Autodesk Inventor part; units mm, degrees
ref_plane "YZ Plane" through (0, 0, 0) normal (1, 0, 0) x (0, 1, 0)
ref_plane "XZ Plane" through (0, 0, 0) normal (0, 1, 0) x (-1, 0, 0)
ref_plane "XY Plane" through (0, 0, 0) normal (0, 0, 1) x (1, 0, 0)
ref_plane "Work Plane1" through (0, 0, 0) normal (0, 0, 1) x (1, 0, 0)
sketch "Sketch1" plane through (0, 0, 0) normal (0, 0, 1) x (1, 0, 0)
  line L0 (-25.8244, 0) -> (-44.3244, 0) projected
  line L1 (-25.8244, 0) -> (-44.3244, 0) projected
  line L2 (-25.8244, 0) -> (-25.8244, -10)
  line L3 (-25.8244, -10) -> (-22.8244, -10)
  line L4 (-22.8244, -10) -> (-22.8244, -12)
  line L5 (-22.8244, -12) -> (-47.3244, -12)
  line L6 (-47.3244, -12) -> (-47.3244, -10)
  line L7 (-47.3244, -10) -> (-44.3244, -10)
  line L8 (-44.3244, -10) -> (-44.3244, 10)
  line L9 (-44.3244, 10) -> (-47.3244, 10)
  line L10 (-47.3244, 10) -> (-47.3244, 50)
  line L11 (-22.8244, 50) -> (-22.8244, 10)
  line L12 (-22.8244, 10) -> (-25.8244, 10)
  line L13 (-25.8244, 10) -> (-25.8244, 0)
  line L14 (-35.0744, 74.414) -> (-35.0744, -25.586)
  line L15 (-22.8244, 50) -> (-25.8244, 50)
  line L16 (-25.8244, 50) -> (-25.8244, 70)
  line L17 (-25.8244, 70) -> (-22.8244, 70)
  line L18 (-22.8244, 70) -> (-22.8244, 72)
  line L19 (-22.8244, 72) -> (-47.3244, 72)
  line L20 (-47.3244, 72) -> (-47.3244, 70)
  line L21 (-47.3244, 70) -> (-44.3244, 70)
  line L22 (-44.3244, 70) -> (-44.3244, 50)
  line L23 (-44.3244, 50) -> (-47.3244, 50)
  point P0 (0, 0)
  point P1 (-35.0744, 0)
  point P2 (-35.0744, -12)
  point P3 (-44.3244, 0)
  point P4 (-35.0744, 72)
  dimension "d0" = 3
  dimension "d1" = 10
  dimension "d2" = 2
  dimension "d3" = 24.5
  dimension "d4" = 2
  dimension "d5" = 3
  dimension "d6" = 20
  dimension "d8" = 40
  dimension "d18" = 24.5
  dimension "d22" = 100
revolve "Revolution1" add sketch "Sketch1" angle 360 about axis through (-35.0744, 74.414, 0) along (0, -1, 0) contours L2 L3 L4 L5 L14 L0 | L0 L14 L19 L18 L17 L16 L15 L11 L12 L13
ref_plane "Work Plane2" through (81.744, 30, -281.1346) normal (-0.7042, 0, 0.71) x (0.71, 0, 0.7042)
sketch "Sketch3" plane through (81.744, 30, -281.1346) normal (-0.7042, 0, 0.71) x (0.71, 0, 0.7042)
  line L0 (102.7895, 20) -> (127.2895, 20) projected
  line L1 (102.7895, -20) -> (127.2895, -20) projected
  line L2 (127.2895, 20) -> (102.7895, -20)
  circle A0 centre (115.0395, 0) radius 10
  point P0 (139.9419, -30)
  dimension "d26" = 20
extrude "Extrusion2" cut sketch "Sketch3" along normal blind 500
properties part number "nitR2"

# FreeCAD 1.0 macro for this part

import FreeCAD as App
import Part
import Sketcher

V = App.Vector
Q = App.Units.Quantity

doc = App.newDocument("Part")
body = doc.addObject("PartDesign::Body", "Body")

sketch1 = body.newObject("Sketcher::SketchObject", "Sketch")
sketch1.AttachmentSupport = (doc.getObject("XY_Plane"), [""])
sketch1.MapMode = "FlatFace"
sketch1.addGeometry([
    Part.LineSegment(V(-25.8, -10, 0), V(-25.8, 10, 0)),
    Part.LineSegment(V(-25.8, 10, 0), V(-22.8, 10, 0)),
    Part.LineSegment(V(-22.8, 10, 0), V(-22.8, 50, 0)),
    Part.LineSegment(V(-22.8, 50, 0), V(-25.8, 50, 0)),
    Part.LineSegment(V(-25.8, 50, 0), V(-25.8, 70, 0)),
    Part.LineSegment(V(-25.8, 70, 0), V(-22.8, 70, 0)),
    Part.LineSegment(V(-22.8, 70, 0), V(-22.8, 72, 0)),
    Part.LineSegment(V(-22.8, 72, 0), V(-35.1, 72, 0)),
    Part.LineSegment(V(-35.1, 72, 0), V(-35.1, -12, 0)),
    Part.LineSegment(V(-35.1, -12, 0), V(-22.8, -12, 0)),
    Part.LineSegment(V(-22.8, -12, 0), V(-22.8, -10, 0)),
    Part.LineSegment(V(-22.8, -10, 0), V(-25.8, -10, 0)),
], False)
sketch1.addGeometry(Part.LineSegment(V(-35.1, 72, 0), V(-35.1, -12, 0)), True)
sketch1.addConstraint([
    Sketcher.Constraint("Coincident", 0, 2, 1, 1),
    Sketcher.Constraint("Coincident", 1, 2, 2, 1),
    Sketcher.Constraint("Coincident", 2, 2, 3, 1),
    Sketcher.Constraint("Coincident", 3, 2, 4, 1),
    Sketcher.Constraint("Coincident", 4, 2, 5, 1),
    Sketcher.Constraint("Coincident", 5, 2, 6, 1),
    Sketcher.Constraint("Coincident", 6, 2, 7, 1),
    Sketcher.Constraint("Coincident", 7, 2, 8, 1),
    Sketcher.Constraint("Coincident", 8, 2, 9, 1),
    Sketcher.Constraint("Coincident", 9, 2, 10, 1),
    Sketcher.Constraint("Coincident", 10, 2, 11, 1),
    Sketcher.Constraint("Coincident", 11, 2, 0, 1),
    Sketcher.Constraint("Vertical", 0),
    Sketcher.Constraint("Horizontal", 1),
    Sketcher.Constraint("Vertical", 2),
    Sketcher.Constraint("Horizontal", 3),
    Sketcher.Constraint("Vertical", 4),
    Sketcher.Constraint("Horizontal", 5),
    Sketcher.Constraint("Vertical", 6),
    Sketcher.Constraint("Horizontal", 7),
    Sketcher.Constraint("Vertical", 8),
    Sketcher.Constraint("Horizontal", 9),
    Sketcher.Constraint("Vertical", 10),
    Sketcher.Constraint("Horizontal", 11),
    Sketcher.Constraint("Vertical", 12),
    Sketcher.Constraint("Coincident", 12, 1, 7, 2),
    Sketcher.Constraint("Symmetric", 1, 2, 10, 2, -1),
    Sketcher.Constraint("Horizontal", 9, 2, 12, 2),
    Sketcher.Constraint("Vertical", 0, 2, 3, 2),
    Sketcher.Constraint("Vertical", 2, 2, 5, 2),
    Sketcher.Constraint("Equal", 0, 4),
    Sketcher.Constraint("Equal", 6, 10),
    Sketcher.Constraint("DistanceX", 1, 1, 1, 2, Q("3 mm")),
    Sketcher.Constraint("DistanceY", 0, 1, 0, 2, Q("20 mm")),
    Sketcher.Constraint("DistanceY", 2, 1, 2, 2, Q("40 mm")),
    Sketcher.Constraint("DistanceY", 6, 1, 6, 2, Q("2 mm")),
    Sketcher.Constraint("DistanceX", 7, 2, 7, 1, Q("12.25 mm")),
    Sketcher.Constraint("DistanceX", 0, 2, -1, 1, Q("25.8244 mm")),
])
revolution = body.newObject("PartDesign::Revolution", "Revolution")
revolution.Profile = sketch1
revolution.ReferenceAxis = (sketch1, ["Axis0"])
revolution.Angle = 360

sketch2 = body.newObject("Sketcher::SketchObject", "Sketch001")
sketch2.Placement = App.Placement(V(81.744, 30, -281.1346), App.Rotation(V(0.710000838, 0, 0.704200831), V(0, 1, 0), V(-0.704200831, 0, 0.710000838), "ZXY"))
sketch2.addGeometry(Part.Circle(V(115, 0, 0), V(0, 0, 1), 10), False)
sketch2.addConstraint([
    Sketcher.Constraint("PointOnObject", 0, 3, -1),
    Sketcher.Constraint("Diameter", 0, Q("20 mm")),
    Sketcher.Constraint("DistanceX", -1, 1, 0, 3, Q("115.0395 mm")),
])
pocket1 = body.newObject("PartDesign::Pocket", "Pocket")
pocket1.Profile = sketch2
pocket1.Length = 500
pocket1.Reversed = True

doc.recompute()
